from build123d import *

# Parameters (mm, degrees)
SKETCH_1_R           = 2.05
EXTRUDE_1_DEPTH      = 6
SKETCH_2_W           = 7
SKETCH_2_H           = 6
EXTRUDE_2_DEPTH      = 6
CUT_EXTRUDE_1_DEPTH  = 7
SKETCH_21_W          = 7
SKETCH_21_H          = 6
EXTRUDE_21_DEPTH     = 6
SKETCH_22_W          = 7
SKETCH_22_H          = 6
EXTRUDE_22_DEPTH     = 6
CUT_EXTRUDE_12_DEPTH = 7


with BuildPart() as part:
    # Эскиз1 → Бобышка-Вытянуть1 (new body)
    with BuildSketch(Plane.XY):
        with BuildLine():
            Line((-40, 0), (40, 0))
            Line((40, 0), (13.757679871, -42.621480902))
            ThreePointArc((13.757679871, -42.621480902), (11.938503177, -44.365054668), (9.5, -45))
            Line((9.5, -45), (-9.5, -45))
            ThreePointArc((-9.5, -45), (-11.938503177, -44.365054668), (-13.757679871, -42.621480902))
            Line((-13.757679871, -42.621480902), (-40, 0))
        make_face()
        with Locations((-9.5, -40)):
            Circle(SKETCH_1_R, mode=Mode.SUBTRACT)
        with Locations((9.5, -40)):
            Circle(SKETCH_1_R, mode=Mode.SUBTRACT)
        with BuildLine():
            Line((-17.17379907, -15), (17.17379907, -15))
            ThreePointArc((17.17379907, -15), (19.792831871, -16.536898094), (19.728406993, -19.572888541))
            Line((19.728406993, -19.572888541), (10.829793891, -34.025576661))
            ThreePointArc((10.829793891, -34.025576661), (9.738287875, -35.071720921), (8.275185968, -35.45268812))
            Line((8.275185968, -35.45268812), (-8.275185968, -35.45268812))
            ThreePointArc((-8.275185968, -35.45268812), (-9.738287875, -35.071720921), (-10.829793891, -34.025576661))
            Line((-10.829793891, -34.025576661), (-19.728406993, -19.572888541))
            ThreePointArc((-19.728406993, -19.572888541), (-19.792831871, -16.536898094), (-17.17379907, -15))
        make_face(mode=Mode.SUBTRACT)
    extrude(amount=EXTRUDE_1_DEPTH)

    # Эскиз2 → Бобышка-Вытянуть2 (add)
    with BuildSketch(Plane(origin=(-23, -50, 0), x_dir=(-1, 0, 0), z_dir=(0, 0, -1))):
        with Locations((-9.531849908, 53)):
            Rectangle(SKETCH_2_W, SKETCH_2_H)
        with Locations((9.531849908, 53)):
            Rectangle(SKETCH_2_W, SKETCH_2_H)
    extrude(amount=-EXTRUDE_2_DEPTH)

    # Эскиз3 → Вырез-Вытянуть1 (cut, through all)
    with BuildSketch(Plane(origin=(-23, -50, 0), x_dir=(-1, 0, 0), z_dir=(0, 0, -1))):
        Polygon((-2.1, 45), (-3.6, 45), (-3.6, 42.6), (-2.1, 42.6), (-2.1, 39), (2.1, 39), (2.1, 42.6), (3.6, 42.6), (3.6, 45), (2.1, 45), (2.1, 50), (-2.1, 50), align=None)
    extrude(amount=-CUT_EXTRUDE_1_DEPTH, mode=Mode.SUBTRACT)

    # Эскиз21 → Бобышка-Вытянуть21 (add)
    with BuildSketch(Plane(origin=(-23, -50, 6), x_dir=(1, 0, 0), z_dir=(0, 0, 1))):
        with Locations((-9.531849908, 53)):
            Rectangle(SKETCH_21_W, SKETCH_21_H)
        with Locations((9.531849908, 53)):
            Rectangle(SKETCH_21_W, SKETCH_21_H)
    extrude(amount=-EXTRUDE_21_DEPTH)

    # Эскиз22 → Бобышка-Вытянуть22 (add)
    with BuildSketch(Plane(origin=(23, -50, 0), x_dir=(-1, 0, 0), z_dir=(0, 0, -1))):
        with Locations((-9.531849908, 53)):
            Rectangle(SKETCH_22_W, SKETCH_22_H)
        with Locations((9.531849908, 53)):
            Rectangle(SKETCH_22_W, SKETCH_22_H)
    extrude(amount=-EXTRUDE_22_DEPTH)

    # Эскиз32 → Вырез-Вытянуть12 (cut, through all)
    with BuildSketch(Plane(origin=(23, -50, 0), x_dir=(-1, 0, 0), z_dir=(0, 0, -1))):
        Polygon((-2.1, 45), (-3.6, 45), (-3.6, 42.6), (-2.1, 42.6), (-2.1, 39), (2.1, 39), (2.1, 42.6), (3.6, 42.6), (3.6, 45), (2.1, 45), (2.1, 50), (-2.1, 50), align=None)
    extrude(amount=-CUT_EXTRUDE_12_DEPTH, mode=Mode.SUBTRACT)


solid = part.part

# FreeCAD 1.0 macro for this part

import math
import FreeCAD as App
import Part
import Sketcher
from FreeCAD import Vector

doc = App.newDocument("Part")
body = doc.addObject("PartDesign::Body", "Body")

sketch1 = body.newObject("Sketcher::SketchObject", "Sketch")
sketch1.AttachmentSupport = (doc.getObject("XY_Plane"), [""])
sketch1.MapMode = "FlatFace"
sketch1.addGeometry([
    Part.LineSegment(Vector(40, 0, 0), Vector(-40, 0, 0)),
    Part.LineSegment(Vector(-40, 0, 0), Vector(-13.8, -42.6, 0)),
    Part.ArcOfCircle(Part.Circle(Vector(-9.5, -40, 0), Vector(0, 0, 1), 5), math.radians(-148), math.radians(-90)),
    Part.LineSegment(Vector(-9.5, -45, 0), Vector(9.5, -45, 0)),
    Part.ArcOfCircle(Part.Circle(Vector(9.5, -40, 0), Vector(0, 0, 1), 5), math.radians(-90), math.radians(-32)),
    Part.LineSegment(Vector(13.8, -42.6, 0), Vector(40, 0, 0)),
    Part.Circle(Vector(9.5, -40, 0), Vector(0, 0, 1), 2),
    Part.Circle(Vector(-9.5, -40, 0), Vector(0, 0, 1), 2),
    Part.LineSegment(Vector(-17.2, -15, 0), Vector(17.2, -15, 0)),
    Part.ArcOfCircle(Part.Circle(Vector(17.2, -18, 0), Vector(0, 0, 1), 3), math.radians(-32), math.radians(90)),
    Part.LineSegment(Vector(19.7, -19.6, 0), Vector(10.8, -34, 0)),
    Part.ArcOfCircle(Part.Circle(Vector(8.3, -32.5, 0), Vector(0, 0, 1), 3), math.radians(-90), math.radians(-32)),
    Part.LineSegment(Vector(8.3, -35.5, 0), Vector(-8.3, -35.5, 0)),
    Part.ArcOfCircle(Part.Circle(Vector(-8.3, -32.5, 0), Vector(0, 0, 1), 3), math.radians(-148), math.radians(-90)),
    Part.LineSegment(Vector(-10.8, -34, 0), Vector(-19.7, -19.6, 0)),
    Part.ArcOfCircle(Part.Circle(Vector(-17.2, -18, 0), Vector(0, 0, 1), 3), math.radians(90), math.radians(212)),
], False)
sketch1.addConstraint([
    Sketcher.Constraint("Coincident", 0, 2, 1, 1),
    Sketcher.Constraint("Tangent", 1, 2, 2, 1),
    Sketcher.Constraint("Tangent", 2, 2, 3, 1),
    Sketcher.Constraint("Tangent", 3, 2, 4, 1),
    Sketcher.Constraint("Tangent", 4, 2, 5, 1),
    Sketcher.Constraint("Coincident", 5, 2, 0, 1),
    Sketcher.Constraint("Tangent", 8, 2, 9, 2),
    Sketcher.Constraint("Tangent", 9, 1, 10, 1),
    Sketcher.Constraint("Tangent", 10, 2, 11, 2),
    Sketcher.Constraint("Tangent", 11, 1, 12, 1),
    Sketcher.Constraint("Tangent", 12, 2, 13, 2),
    Sketcher.Constraint("Tangent", 13, 1, 14, 1),
    Sketcher.Constraint("Tangent", 14, 2, 15, 2),
    Sketcher.Constraint("Tangent", 15, 1, 8, 1),
    Sketcher.Constraint("Horizontal", 0),
    Sketcher.Constraint("Horizontal", 3),
    Sketcher.Constraint("Horizontal", 8),
    Sketcher.Constraint("Horizontal", 12),
    Sketcher.Constraint("Coincident", 6, 3, 4, 3),
    Sketcher.Constraint("Coincident", 7, 3, 2, 3),
    Sketcher.Constraint("Equal", 2, 4),
    Sketcher.Constraint("Equal", 6, 7),
    Sketcher.Constraint("Equal", 9, 11),
    Sketcher.Constraint("Equal", 11, 13),
    Sketcher.Constraint("Equal", 13, 15),
    Sketcher.Constraint("Symmetric", 0, 2, 5, 2, -1, 1),
    Sketcher.Constraint("Symmetric", 10, 2, 13, 1, -2),
    Sketcher.Constraint("Parallel", 5, 10),
    Sketcher.Constraint("Parallel", 1, 14),
    Sketcher.Constraint("Radius", 2, 5.0),
    Sketcher.Constraint("Radius", 9, 3.0),
    Sketcher.Constraint("Diameter", 6, 4.1),
    Sketcher.Constraint("DistanceX", 0, 2, 0, 1, 80.0),
    Sketcher.Constraint("DistanceX", 3, 1, 3, 2, 19.0),
    Sketcher.Constraint("DistanceY", 2, 3, -1, 1, 40.0),
    Sketcher.Constraint("DistanceY", 9, 3, -1, 1, 18.0),
    Sketcher.Constraint("DistanceX", 8, 1, 8, 2, 34.347598),
    Sketcher.Constraint("DistanceX", 12, 2, 12, 1, 16.550372),
])
pad1 = body.newObject("PartDesign::Pad", "Pad")
pad1.Profile = sketch1
pad1.Length = 6

sketch2 = body.newObject("Sketcher::SketchObject", "Sketch001")
sketch2.AttachmentSupport = (doc.getObject("XY_Plane"), [""])
sketch2.MapMode = "FlatFace"
sketch2.addGeometry([
    Part.LineSegment(Vector(-10, 6, 0), Vector(-10, 0, 0)),
    Part.LineSegment(Vector(-10, 0, 0), Vector(-17, 0, 0)),
    Part.LineSegment(Vector(-17, 0, 0), Vector(-17, 6, 0)),
    Part.LineSegment(Vector(-17, 6, 0), Vector(-10, 6, 0)),
    Part.LineSegment(Vector(-29, 6, 0), Vector(-29, 0, 0)),
    Part.LineSegment(Vector(-29, 0, 0), Vector(-36, 0, 0)),
    Part.LineSegment(Vector(-36, 0, 0), Vector(-36, 6, 0)),
    Part.LineSegment(Vector(-36, 6, 0), Vector(-29, 6, 0)),
], False)
sketch2.addConstraint([
    Sketcher.Constraint("Coincident", 0, 2, 1, 1),
    Sketcher.Constraint("Coincident", 1, 2, 2, 1),
    Sketcher.Constraint("Coincident", 2, 2, 3, 1),
    Sketcher.Constraint("Coincident", 3, 2, 0, 1),
    Sketcher.Constraint("Coincident", 4, 2, 5, 1),
    Sketcher.Constraint("Coincident", 5, 2, 6, 1),
    Sketcher.Constraint("Coincident", 6, 2, 7, 1),
    Sketcher.Constraint("Coincident", 7, 2, 4, 1),
    Sketcher.Constraint("Vertical", 0),
    Sketcher.Constraint("Horizontal", 1),
    Sketcher.Constraint("Vertical", 2),
    Sketcher.Constraint("Horizontal", 3),
    Sketcher.Constraint("Vertical", 4),
    Sketcher.Constraint("Horizontal", 5),
    Sketcher.Constraint("Vertical", 6),
    Sketcher.Constraint("Horizontal", 7),
    Sketcher.Constraint("PointOnObject", 0, 2, -1),
    Sketcher.Constraint("PointOnObject", 4, 2, -1),
    Sketcher.Constraint("Horizontal", 3, 2, 6, 2),
    Sketcher.Constraint("Equal", 3, 5),
    Sketcher.Constraint("DistanceX", 1, 2, 1, 1, 7.0),
    Sketcher.Constraint("DistanceY", 0, 2, 0, 1, 6.0),
    Sketcher.Constraint("DistanceX", 4, 2, 1, 2, 12.0637),
    Sketcher.Constraint("DistanceX", 0, 2, -1, 1, 9.96815),
])
pad2 = body.newObject("PartDesign::Pad", "Pad001")
pad2.Profile = sketch2
pad2.Length = 6

sketch3 = body.newObject("Sketcher::SketchObject", "Sketch002")
sketch3.AttachmentSupport = (doc.getObject("XY_Plane"), [""])
sketch3.MapMode = "FlatFace"
sketch3.addGeometry([
    Part.LineSegment(Vector(-20.9, -5, 0), Vector(-19.4, -5, 0)),
    Part.LineSegment(Vector(-19.4, -5, 0), Vector(-19.4, -7.4, 0)),
    Part.LineSegment(Vector(-19.4, -7.4, 0), Vector(-20.9, -7.4, 0)),
    Part.LineSegment(Vector(-20.9, -7.4, 0), Vector(-20.9, -11, 0)),
    Part.LineSegment(Vector(-20.9, -11, 0), Vector(-25.1, -11, 0)),
    Part.LineSegment(Vector(-25.1, -11, 0), Vector(-25.1, -7.4, 0)),
    Part.LineSegment(Vector(-25.1, -7.4, 0), Vector(-26.6, -7.4, 0)),
    Part.LineSegment(Vector(-26.6, -7.4, 0), Vector(-26.6, -5, 0)),
    Part.LineSegment(Vector(-26.6, -5, 0), Vector(-25.1, -5, 0)),
    Part.LineSegment(Vector(-25.1, -5, 0), Vector(-25.1, 0, 0)),
    Part.LineSegment(Vector(-25.1, 0, 0), Vector(-20.9, 0, 0)),
    Part.LineSegment(Vector(-20.9, 0, 0), Vector(-20.9, -5, 0)),
], False)
sketch3.addConstraint([
    Sketcher.Constraint("Coincident", 0, 2, 1, 1),
    Sketcher.Constraint("Coincident", 1, 2, 2, 1),
    Sketcher.Constraint("Coincident", 2, 2, 3, 1),
    Sketcher.Constraint("Coincident", 3, 2, 4, 1),
    Sketcher.Constraint("Coincident", 4, 2, 5, 1),
    Sketcher.Constraint("Coincident", 5, 2, 6, 1),
    Sketcher.Constraint("Coincident", 6, 2, 7, 1),
    Sketcher.Constraint("Coincident", 7, 2, 8, 1),
    Sketcher.Constraint("Coincident", 8, 2, 9, 1),
    Sketcher.Constraint("Coincident", 9, 2, 10, 1),
    Sketcher.Constraint("Coincident", 10, 2, 11, 1),
    Sketcher.Constraint("Coincident", 11, 2, 0, 1),
    Sketcher.Constraint("Horizontal", 0),
    Sketcher.Constraint("Vertical", 1),
    Sketcher.Constraint("Horizontal", 2),
    Sketcher.Constraint("Vertical", 3),
    Sketcher.Constraint("Horizontal", 4),
    Sketcher.Constraint("Vertical", 5),
    Sketcher.Constraint("Horizontal", 6),
    Sketcher.Constraint("Vertical", 7),
    Sketcher.Constraint("Horizontal", 8),
    Sketcher.Constraint("Vertical", 9),
    Sketcher.Constraint("Horizontal", 10),
    Sketcher.Constraint("Vertical", 11),
    Sketcher.Constraint("PointOnObject", 9, 2, -1),
    Sketcher.Constraint("Horizontal", 2, 2, 5, 2),
    Sketcher.Constraint("Horizontal", 0, 2, 7, 2),
    Sketcher.Constraint("Vertical", 5, 2, 8, 2),
    Sketcher.Constraint("Vertical", 3, 2, 10, 2),
    Sketcher.Constraint("Equal", 2, 6),
    Sketcher.Constraint("DistanceY", 9, 1, 9, 2, 5.0),
    Sketcher.Constraint("DistanceX", 0, 1, 0, 2, 1.5),
    Sketcher.Constraint("DistanceX", 4, 2, 4, 1, 4.2),
    Sketcher.Constraint("DistanceY", 1, 2, 1, 1, 2.4),
    Sketcher.Constraint("DistanceY", 3, 2, 3, 1, 3.6),
    Sketcher.Constraint("DistanceX", 0, 2, -1, 1, 19.4),
])
pocket1 = body.newObject("PartDesign::Pocket", "Pocket")
pocket1.Profile = sketch3
pocket1.Type = "ThroughAll"
pocket1.Reversed = True

sketch4 = body.newObject("Sketcher::SketchObject", "Sketch003")
sketch4.AttachmentSupport = (doc.getObject("XY_Plane"), [""])
sketch4.MapMode = "FlatFace"
sketch4.AttachmentOffset = App.Placement(Vector(0, 0, 6), App.Rotation())
sketch4.addGeometry([
    Part.LineSegment(Vector(-36, 6, 0), Vector(-36, 0, 0)),
    Part.LineSegment(Vector(-36, 0, 0), Vector(-29, 0, 0)),
    Part.LineSegment(Vector(-29, 0, 0), Vector(-29, 6, 0)),
    Part.LineSegment(Vector(-29, 6, 0), Vector(-36, 6, 0)),
    Part.LineSegment(Vector(-17, 6, 0), Vector(-17, 0, 0)),
    Part.LineSegment(Vector(-17, 0, 0), Vector(-10, 0, 0)),
    Part.LineSegment(Vector(-10, 0, 0), Vector(-10, 6, 0)),
    Part.LineSegment(Vector(-10, 6, 0), Vector(-17, 6, 0)),
], False)
sketch4.addConstraint([
    Sketcher.Constraint("Coincident", 0, 2, 1, 1),
    Sketcher.Constraint("Coincident", 1, 2, 2, 1),
    Sketcher.Constraint("Coincident", 2, 2, 3, 1),
    Sketcher.Constraint("Coincident", 3, 2, 0, 1),
    Sketcher.Constraint("Coincident", 4, 2, 5, 1),
    Sketcher.Constraint("Coincident", 5, 2, 6, 1),
    Sketcher.Constraint("Coincident", 6, 2, 7, 1),
    Sketcher.Constraint("Coincident", 7, 2, 4, 1),
    Sketcher.Constraint("Vertical", 0),
    Sketcher.Constraint("Horizontal", 1),
    Sketcher.Constraint("Vertical", 2),
    Sketcher.Constraint("Horizontal", 3),
    Sketcher.Constraint("Vertical", 4),
    Sketcher.Constraint("Horizontal", 5),
    Sketcher.Constraint("Vertical", 6),
    Sketcher.Constraint("Horizontal", 7),
    Sketcher.Constraint("PointOnObject", 0, 2, -1),
    Sketcher.Constraint("PointOnObject", 4, 2, -1),
    Sketcher.Constraint("Horizontal", 3, 2, 6, 2),
    Sketcher.Constraint("Equal", 3, 5),
    Sketcher.Constraint("DistanceX", 1, 1, 1, 2, 7.0),
    Sketcher.Constraint("DistanceY", 0, 2, 0, 1, 6.0),
    Sketcher.Constraint("DistanceX", 1, 2, 4, 2, 12.0637),
    Sketcher.Constraint("DistanceX", 0, 2, -1, 1, 36.03185),
])
pad3 = body.newObject("PartDesign::Pad", "Pad002")
pad3.Profile = sketch4
pad3.Length = 6
pad3.Reversed = True

sketch5 = body.newObject("Sketcher::SketchObject", "Sketch004")
sketch5.AttachmentSupport = (doc.getObject("XY_Plane"), [""])
sketch5.MapMode = "FlatFace"
sketch5.addGeometry([
    Part.LineSegment(Vector(36, 6, 0), Vector(36, 0, 0)),
    Part.LineSegment(Vector(36, 0, 0), Vector(29, 0, 0)),
    Part.LineSegment(Vector(29, 0, 0), Vector(29, 6, 0)),
    Part.LineSegment(Vector(29, 6, 0), Vector(36, 6, 0)),
    Part.LineSegment(Vector(17, 6, 0), Vector(17, 0, 0)),
    Part.LineSegment(Vector(17, 0, 0), Vector(10, 0, 0)),
    Part.LineSegment(Vector(10, 0, 0), Vector(10, 6, 0)),
    Part.LineSegment(Vector(10, 6, 0), Vector(17, 6, 0)),
], False)
sketch5.addConstraint([
    Sketcher.Constraint("Coincident", 0, 2, 1, 1),
    Sketcher.Constraint("Coincident", 1, 2, 2, 1),
    Sketcher.Constraint("Coincident", 2, 2, 3, 1),
    Sketcher.Constraint("Coincident", 3, 2, 0, 1),
    Sketcher.Constraint("Coincident", 4, 2, 5, 1),
    Sketcher.Constraint("Coincident", 5, 2, 6, 1),
    Sketcher.Constraint("Coincident", 6, 2, 7, 1),
    Sketcher.Constraint("Coincident", 7, 2, 4, 1),
    Sketcher.Constraint("Vertical", 0),
    Sketcher.Constraint("Horizontal", 1),
    Sketcher.Constraint("Vertical", 2),
    Sketcher.Constraint("Horizontal", 3),
    Sketcher.Constraint("Vertical", 4),
    Sketcher.Constraint("Horizontal", 5),
    Sketcher.Constraint("Vertical", 6),
    Sketcher.Constraint("Horizontal", 7),
    Sketcher.Constraint("PointOnObject", 0, 2, -1),
    Sketcher.Constraint("PointOnObject", 4, 2, -1),
    Sketcher.Constraint("Horizontal", 3, 2, 6, 2),
    Sketcher.Constraint("Equal", 3, 5),
    Sketcher.Constraint("DistanceX", 1, 2, 1, 1, 7.0),
    Sketcher.Constraint("DistanceY", 0, 2, 0, 1, 6.0),
    Sketcher.Constraint("DistanceX", 4, 2, 1, 2, 12.0637),
    Sketcher.Constraint("DistanceX", -1, 1, 0, 2, 36.03185),
])
pad4 = body.newObject("PartDesign::Pad", "Pad003")
pad4.Profile = sketch5
pad4.Length = 6

sketch6 = body.newObject("Sketcher::SketchObject", "Sketch005")
sketch6.AttachmentSupport = (doc.getObject("XY_Plane"), [""])
sketch6.MapMode = "FlatFace"
sketch6.addGeometry([
    Part.LineSegment(Vector(25.1, -5, 0), Vector(26.6, -5, 0)),
    Part.LineSegment(Vector(26.6, -5, 0), Vector(26.6, -7.4, 0)),
    Part.LineSegment(Vector(26.6, -7.4, 0), Vector(25.1, -7.4, 0)),
    Part.LineSegment(Vector(25.1, -7.4, 0), Vector(25.1, -11, 0)),
    Part.LineSegment(Vector(25.1, -11, 0), Vector(20.9, -11, 0)),
    Part.LineSegment(Vector(20.9, -11, 0), Vector(20.9, -7.4, 0)),
    Part.LineSegment(Vector(20.9, -7.4, 0), Vector(19.4, -7.4, 0)),
    Part.LineSegment(Vector(19.4, -7.4, 0), Vector(19.4, -5, 0)),
    Part.LineSegment(Vector(19.4, -5, 0), Vector(20.9, -5, 0)),
    Part.LineSegment(Vector(20.9, -5, 0), Vector(20.9, 0, 0)),
    Part.LineSegment(Vector(20.9, 0, 0), Vector(25.1, 0, 0)),
    Part.LineSegment(Vector(25.1, 0, 0), Vector(25.1, -5, 0)),
], False)
sketch6.addConstraint([
    Sketcher.Constraint("Coincident", 0, 2, 1, 1),
    Sketcher.Constraint("Coincident", 1, 2, 2, 1),
    Sketcher.Constraint("Coincident", 2, 2, 3, 1),
    Sketcher.Constraint("Coincident", 3, 2, 4, 1),
    Sketcher.Constraint("Coincident", 4, 2, 5, 1),
    Sketcher.Constraint("Coincident", 5, 2, 6, 1),
    Sketcher.Constraint("Coincident", 6, 2, 7, 1),
    Sketcher.Constraint("Coincident", 7, 2, 8, 1),
    Sketcher.Constraint("Coincident", 8, 2, 9, 1),
    Sketcher.Constraint("Coincident", 9, 2, 10, 1),
    Sketcher.Constraint("Coincident", 10, 2, 11, 1),
    Sketcher.Constraint("Coincident", 11, 2, 0, 1),
    Sketcher.Constraint("Horizontal", 0),
    Sketcher.Constraint("Vertical", 1),
    Sketcher.Constraint("Horizontal", 2),
    Sketcher.Constraint("Vertical", 3),
    Sketcher.Constraint("Horizontal", 4),
    Sketcher.Constraint("Vertical", 5),
    Sketcher.Constraint("Horizontal", 6),
    Sketcher.Constraint("Vertical", 7),
    Sketcher.Constraint("Horizontal", 8),
    Sketcher.Constraint("Vertical", 9),
    Sketcher.Constraint("Horizontal", 10),
    Sketcher.Constraint("Vertical", 11),
    Sketcher.Constraint("PointOnObject", 9, 2, -1),
    Sketcher.Constraint("Horizontal", 2, 2, 5, 2),
    Sketcher.Constraint("Horizontal", 0, 2, 7, 2),
    Sketcher.Constraint("Vertical", 5, 2, 8, 2),
    Sketcher.Constraint("Vertical", 3, 2, 10, 2),
    Sketcher.Constraint("Equal", 2, 6),
    Sketcher.Constraint("DistanceY", 9, 1, 9, 2, 5.0),
    Sketcher.Constraint("DistanceX", 0, 1, 0, 2, 1.5),
    Sketcher.Constraint("DistanceX", 4, 2, 4, 1, 4.2),
    Sketcher.Constraint("DistanceY", 1, 2, 1, 1, 2.4),
    Sketcher.Constraint("DistanceY", 3, 2, 3, 1, 3.6),
    Sketcher.Constraint("DistanceX", -1, 1, 0, 2, 26.6),
])
pocket2 = body.newObject("PartDesign::Pocket", "Pocket001")
pocket2.Profile = sketch6
pocket2.Type = "ThroughAll"
pocket2.Reversed = True

doc.recompute()
